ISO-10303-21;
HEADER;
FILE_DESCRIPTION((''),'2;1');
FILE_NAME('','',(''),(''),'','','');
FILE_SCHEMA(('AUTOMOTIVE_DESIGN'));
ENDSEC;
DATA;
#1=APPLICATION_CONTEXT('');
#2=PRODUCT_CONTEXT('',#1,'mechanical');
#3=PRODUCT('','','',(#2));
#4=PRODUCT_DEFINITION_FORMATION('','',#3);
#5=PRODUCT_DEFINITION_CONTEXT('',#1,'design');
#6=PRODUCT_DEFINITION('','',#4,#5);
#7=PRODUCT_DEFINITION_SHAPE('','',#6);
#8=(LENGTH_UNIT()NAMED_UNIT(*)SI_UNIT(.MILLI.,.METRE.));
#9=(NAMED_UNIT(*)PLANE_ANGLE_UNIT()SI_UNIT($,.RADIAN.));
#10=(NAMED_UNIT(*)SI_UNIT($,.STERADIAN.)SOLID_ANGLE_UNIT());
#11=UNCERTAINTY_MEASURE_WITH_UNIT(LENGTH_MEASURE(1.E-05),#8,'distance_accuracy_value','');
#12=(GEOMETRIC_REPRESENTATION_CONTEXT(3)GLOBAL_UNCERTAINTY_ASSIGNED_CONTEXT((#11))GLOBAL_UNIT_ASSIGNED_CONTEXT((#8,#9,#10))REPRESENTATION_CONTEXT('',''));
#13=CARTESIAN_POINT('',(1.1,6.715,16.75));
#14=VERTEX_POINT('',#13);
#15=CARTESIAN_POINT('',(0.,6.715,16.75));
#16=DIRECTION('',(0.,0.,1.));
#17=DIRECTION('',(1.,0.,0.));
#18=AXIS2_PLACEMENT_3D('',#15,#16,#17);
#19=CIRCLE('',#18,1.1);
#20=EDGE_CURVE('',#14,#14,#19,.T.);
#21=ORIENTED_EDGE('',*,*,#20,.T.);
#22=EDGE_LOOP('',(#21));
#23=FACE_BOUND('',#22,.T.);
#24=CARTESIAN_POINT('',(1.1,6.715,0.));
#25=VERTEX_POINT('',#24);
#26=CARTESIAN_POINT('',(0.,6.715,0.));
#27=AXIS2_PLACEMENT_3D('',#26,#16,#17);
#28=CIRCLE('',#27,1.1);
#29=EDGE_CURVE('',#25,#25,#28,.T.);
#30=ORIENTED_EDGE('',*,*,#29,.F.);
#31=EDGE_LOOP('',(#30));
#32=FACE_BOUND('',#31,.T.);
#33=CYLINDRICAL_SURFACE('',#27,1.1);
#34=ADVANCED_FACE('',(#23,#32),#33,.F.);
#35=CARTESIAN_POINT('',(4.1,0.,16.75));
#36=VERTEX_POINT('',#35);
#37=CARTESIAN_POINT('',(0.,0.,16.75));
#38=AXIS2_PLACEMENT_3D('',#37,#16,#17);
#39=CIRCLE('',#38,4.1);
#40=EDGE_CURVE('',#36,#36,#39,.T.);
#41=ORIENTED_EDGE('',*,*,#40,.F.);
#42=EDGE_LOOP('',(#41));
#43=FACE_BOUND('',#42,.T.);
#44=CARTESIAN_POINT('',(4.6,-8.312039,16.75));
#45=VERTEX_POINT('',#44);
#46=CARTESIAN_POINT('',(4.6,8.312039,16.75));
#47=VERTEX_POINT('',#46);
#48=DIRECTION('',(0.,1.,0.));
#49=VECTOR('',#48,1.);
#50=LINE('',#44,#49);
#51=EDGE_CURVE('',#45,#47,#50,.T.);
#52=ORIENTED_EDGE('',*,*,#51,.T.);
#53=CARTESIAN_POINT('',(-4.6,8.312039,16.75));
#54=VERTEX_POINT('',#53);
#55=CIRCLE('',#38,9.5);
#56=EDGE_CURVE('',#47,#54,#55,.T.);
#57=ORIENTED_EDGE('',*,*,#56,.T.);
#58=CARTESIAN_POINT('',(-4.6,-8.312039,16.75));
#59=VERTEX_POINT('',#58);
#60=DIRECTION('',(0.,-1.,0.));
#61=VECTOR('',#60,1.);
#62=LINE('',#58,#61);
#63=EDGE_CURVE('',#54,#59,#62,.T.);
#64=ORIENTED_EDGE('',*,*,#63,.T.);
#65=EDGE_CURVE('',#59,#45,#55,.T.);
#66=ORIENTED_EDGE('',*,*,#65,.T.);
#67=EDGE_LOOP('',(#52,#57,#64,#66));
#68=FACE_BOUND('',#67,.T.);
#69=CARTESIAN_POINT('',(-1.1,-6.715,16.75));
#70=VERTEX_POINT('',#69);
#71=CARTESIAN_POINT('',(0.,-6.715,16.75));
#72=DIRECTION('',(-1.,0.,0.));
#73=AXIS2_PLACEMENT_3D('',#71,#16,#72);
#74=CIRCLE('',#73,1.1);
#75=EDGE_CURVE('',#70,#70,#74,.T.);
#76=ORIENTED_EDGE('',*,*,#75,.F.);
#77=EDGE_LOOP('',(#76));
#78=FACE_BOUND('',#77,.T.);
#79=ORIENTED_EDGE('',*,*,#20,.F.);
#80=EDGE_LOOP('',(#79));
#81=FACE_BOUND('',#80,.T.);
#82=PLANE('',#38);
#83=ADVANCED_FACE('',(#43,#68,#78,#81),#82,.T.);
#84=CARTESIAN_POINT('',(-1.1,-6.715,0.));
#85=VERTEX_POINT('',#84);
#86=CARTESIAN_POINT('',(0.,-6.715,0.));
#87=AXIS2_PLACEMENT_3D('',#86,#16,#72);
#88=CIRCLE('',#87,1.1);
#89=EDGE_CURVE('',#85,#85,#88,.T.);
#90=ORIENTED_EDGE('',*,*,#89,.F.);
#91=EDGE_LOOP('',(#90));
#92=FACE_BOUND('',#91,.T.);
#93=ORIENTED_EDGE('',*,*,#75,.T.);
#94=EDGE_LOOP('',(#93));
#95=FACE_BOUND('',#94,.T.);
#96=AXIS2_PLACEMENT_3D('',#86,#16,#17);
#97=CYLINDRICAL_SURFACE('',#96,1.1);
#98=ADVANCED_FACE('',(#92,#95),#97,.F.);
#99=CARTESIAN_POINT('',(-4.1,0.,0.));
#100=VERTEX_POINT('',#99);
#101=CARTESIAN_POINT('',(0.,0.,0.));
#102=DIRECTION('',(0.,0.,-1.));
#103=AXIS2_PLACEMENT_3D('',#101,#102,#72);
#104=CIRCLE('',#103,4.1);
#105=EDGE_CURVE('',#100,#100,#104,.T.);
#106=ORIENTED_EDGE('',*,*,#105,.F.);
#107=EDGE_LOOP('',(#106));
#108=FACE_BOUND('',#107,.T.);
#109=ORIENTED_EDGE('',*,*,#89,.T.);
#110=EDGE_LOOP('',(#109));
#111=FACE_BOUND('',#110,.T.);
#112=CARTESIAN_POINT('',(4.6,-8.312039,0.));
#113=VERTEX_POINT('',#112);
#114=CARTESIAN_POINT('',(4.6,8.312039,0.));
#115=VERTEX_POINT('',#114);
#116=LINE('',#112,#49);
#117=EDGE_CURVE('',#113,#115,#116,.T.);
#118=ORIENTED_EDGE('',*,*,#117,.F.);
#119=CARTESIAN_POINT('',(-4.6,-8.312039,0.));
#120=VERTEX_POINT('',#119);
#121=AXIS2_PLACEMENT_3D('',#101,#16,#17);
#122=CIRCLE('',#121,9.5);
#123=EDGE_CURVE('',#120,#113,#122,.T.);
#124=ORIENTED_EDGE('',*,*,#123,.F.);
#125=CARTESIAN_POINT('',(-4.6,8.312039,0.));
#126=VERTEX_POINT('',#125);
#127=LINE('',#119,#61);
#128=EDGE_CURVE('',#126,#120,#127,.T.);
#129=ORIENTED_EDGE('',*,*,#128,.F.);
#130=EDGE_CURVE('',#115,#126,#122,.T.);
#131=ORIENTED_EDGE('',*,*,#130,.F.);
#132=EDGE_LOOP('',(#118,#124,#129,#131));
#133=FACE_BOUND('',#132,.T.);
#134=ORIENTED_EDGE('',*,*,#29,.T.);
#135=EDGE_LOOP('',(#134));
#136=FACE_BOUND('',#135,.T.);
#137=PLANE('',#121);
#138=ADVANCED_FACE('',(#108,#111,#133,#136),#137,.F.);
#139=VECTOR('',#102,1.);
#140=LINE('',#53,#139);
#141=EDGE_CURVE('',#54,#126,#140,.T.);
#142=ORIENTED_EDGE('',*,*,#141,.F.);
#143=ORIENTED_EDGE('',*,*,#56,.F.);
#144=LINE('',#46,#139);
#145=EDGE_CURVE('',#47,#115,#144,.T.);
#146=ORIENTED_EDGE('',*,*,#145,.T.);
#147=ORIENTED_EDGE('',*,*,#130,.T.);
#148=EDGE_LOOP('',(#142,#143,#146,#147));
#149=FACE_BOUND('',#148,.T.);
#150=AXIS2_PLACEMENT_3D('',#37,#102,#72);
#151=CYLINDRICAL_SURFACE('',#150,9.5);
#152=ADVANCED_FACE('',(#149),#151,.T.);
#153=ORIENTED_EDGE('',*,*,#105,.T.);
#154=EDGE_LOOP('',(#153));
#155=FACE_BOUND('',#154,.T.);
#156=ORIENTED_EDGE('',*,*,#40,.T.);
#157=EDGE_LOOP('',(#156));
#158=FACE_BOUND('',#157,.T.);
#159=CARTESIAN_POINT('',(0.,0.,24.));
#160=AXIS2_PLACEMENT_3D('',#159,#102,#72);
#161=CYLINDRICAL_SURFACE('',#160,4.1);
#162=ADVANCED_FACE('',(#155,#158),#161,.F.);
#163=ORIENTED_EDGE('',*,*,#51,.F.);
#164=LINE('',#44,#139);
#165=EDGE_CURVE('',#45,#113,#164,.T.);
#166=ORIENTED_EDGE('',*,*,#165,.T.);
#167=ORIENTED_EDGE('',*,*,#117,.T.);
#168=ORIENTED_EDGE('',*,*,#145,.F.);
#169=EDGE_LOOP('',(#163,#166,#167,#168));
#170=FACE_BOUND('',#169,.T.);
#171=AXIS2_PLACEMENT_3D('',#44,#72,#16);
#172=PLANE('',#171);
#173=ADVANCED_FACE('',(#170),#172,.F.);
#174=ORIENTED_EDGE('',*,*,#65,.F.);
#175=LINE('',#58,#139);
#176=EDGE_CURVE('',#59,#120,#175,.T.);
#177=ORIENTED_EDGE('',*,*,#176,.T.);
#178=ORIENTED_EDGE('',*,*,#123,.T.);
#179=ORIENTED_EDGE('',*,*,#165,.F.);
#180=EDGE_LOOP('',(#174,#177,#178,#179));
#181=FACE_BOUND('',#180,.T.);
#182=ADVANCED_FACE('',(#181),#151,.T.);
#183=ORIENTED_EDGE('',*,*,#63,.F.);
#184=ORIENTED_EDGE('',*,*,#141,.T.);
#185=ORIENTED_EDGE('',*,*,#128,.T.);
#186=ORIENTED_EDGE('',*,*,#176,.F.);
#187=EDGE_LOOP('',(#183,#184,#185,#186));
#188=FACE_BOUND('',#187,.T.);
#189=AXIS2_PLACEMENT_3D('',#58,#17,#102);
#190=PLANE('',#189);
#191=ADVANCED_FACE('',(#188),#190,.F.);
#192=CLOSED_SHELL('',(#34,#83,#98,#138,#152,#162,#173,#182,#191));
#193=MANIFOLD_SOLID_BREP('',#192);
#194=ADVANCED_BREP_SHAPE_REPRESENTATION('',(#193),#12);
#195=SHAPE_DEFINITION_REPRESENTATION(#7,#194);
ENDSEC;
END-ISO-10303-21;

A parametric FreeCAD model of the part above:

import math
import FreeCAD as App
import Part
import Sketcher

doc = App.newDocument("Part")
body = doc.addObject("PartDesign::Body", "Body")

# Sketch on XY plane
sketch1 = doc.addObject("Sketcher::SketchObject", "Sketch")
body.addObject(sketch1)
sketch1.AttachmentSupport = (doc.XY_Plane, [""])
sketch1.MapMode = "FlatFace"
sketch1.addGeometry([
    Part.LineSegment(App.Vector(-4.6, 8.312039, 0), App.Vector(-4.6, -8.312039, 0)),
    Part.ArcOfCircle(Part.Circle(App.Vector(0, 0, 0), App.Vector(0, 0, 1), 9.5), math.radians(-118.960761), math.radians(-61.039239)),
    Part.LineSegment(App.Vector(4.6, -8.312039, 0), App.Vector(4.6, 8.312039, 0)),
    Part.ArcOfCircle(Part.Circle(App.Vector(0, 0, 0), App.Vector(0, 0, 1), 9.5), math.radians(61.039239), math.radians(118.960761)),
], False)
sketch1.addConstraint([
    Sketcher.Constraint("Coincident", 0, 2, 1, 1),
    Sketcher.Constraint("Coincident", 1, 2, 2, 1),
    Sketcher.Constraint("Coincident", 2, 2, 3, 1),
    Sketcher.Constraint("Coincident", 3, 2, 0, 1),
    Sketcher.Constraint("Vertical", 0),
    Sketcher.Constraint("Vertical", 2),
    Sketcher.Constraint("Coincident", 1, 3, -1, 1),
    Sketcher.Constraint("Coincident", 3, 3, -1, 1),
    Sketcher.Constraint("Equal", 1, 3),
    Sketcher.Constraint("Horizontal", 0, 2, 1, 2),
    Sketcher.Constraint("Radius", 1, 9.5),
    Sketcher.Constraint("DistanceX", 0, 2, -1, 1, 4.6),
])
pad1 = doc.addObject("PartDesign::Pad", "Pad")
body.addObject(pad1)
pad1.Profile = sketch1
pad1.Length = 16.75

# Sketch on XY plane
sketch2 = doc.addObject("Sketcher::SketchObject", "Sketch001")
body.addObject(sketch2)
sketch2.AttachmentSupport = (doc.XY_Plane, [""])
sketch2.MapMode = "FlatFace"
sketch2.AttachmentOffset = App.Placement(App.Vector(0, 0, 16.75), App.Rotation())
sketch2.addGeometry([
    Part.Circle(App.Vector(0, 6.715, 0), App.Vector(0, 0, 1), 1.1),
    Part.Circle(App.Vector(0, -6.715, 0), App.Vector(0, 0, 1), 1.1),
], False)
sketch2.addConstraint([
    Sketcher.Constraint("Equal", 0, 1),
    Sketcher.Constraint("Symmetric", 0, 3, 1, 3, -1, 1),
    Sketcher.Constraint("PointOnObject", 0, 3, -2),
    Sketcher.Constraint("Diameter", 0, 2.2),
    Sketcher.Constraint("DistanceY", 1, 3, 0, 3, 13.43),
])
pocket1 = doc.addObject("PartDesign::Pocket", "Pocket")
body.addObject(pocket1)
pocket1.Profile = sketch2
pocket1.Type = "ThroughAll"

# Sketch on XY plane
sketch3 = doc.addObject("Sketcher::SketchObject", "Sketch002")
body.addObject(sketch3)
sketch3.AttachmentSupport = (doc.XY_Plane, [""])
sketch3.MapMode = "FlatFace"
sketch3.addGeometry(Part.Circle(App.Vector(0, 0, 0), App.Vector(0, 0, 1), 4.1), False)
sketch3.addConstraint([
    Sketcher.Constraint("Coincident", 0, 3, -1, 1),
    Sketcher.Constraint("Diameter", 0, 8.2),
])
pocket2 = doc.addObject("PartDesign::Pocket", "Pocket001")
body.addObject(pocket2)
pocket2.Profile = sketch3
pocket2.Length = 24
pocket2.Reversed = True

doc.recompute()
